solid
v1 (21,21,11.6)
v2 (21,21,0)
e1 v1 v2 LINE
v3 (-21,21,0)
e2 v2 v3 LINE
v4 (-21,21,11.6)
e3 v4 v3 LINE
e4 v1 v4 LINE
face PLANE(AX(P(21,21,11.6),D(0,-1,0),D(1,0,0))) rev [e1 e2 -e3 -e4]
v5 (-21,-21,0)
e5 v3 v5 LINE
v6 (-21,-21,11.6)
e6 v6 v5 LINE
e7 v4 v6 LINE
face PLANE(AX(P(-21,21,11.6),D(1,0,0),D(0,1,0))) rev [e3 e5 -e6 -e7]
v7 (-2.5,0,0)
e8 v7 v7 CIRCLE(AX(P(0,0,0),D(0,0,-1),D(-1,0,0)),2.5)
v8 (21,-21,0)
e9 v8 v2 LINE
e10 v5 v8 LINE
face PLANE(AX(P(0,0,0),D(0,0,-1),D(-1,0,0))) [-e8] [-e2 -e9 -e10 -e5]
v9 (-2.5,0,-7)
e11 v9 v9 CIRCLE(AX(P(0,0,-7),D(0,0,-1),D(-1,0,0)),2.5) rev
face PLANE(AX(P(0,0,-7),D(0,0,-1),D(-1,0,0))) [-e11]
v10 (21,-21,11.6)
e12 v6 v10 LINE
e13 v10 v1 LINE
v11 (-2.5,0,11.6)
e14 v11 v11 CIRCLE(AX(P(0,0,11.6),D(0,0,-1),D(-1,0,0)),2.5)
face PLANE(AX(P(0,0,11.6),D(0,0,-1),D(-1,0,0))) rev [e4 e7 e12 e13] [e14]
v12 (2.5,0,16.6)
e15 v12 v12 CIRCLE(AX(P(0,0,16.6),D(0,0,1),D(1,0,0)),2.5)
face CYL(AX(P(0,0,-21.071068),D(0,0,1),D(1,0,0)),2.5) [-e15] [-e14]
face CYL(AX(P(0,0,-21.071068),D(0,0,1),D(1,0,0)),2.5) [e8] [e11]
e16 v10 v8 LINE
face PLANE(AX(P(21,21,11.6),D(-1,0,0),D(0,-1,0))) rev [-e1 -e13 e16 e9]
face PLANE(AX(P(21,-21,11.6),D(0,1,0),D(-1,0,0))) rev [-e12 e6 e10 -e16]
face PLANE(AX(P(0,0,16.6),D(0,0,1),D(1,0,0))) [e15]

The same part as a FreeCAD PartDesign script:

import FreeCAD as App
import Part
import Sketcher

V = App.Vector
Q = App.Units.Quantity

doc = App.newDocument("Part")
body = doc.addObject("PartDesign::Body", "Body")

# Sketch on XY plane
sketch1 = body.newObject("Sketcher::SketchObject", "Sketch")
sketch1.AttachmentSupport = (doc.getObject("XY_Plane"), [""])
sketch1.MapMode = "FlatFace"
sketch1.addGeometry(Part.LineSegment(V(-21, 21, 0), V(-21, -21, 0)), False)
sketch1.addGeometry(Part.LineSegment(V(-21, -21, 0), V(21, -21, 0)), False)
sketch1.addGeometry(Part.LineSegment(V(21, -21, 0), V(21, 21, 0)), False)
sketch1.addGeometry(Part.LineSegment(V(21, 21, 0), V(-21, 21, 0)), False)
sketch1.addConstraint(Sketcher.Constraint("Coincident", 0, 2, 1, 1))
sketch1.addConstraint(Sketcher.Constraint("Coincident", 1, 2, 2, 1))
sketch1.addConstraint(Sketcher.Constraint("Coincident", 2, 2, 3, 1))
sketch1.addConstraint(Sketcher.Constraint("Coincident", 3, 2, 0, 1))
sketch1.addConstraint(Sketcher.Constraint("Vertical", 0))
sketch1.addConstraint(Sketcher.Constraint("Horizontal", 1))
sketch1.addConstraint(Sketcher.Constraint("Vertical", 2))
sketch1.addConstraint(Sketcher.Constraint("Horizontal", 3))
sketch1.addConstraint(Sketcher.Constraint("Symmetric", 0, 2, 2, 2, -1, 1))
sketch1.addConstraint(Sketcher.Constraint("Equal", 3, 0))
sketch1.addConstraint(Sketcher.Constraint("DistanceX", 1, 1, 1, 2, Q("42 mm")))
pad1 = body.newObject("PartDesign::Pad", "Pad")
pad1.Profile = sketch1
pad1.Length = 11.6

# Sketch on XY plane
sketch2 = body.newObject("Sketcher::SketchObject", "Sketch001")
sketch2.AttachmentSupport = (doc.getObject("XY_Plane"), [""])
sketch2.MapMode = "FlatFace"
sketch2.AttachmentOffset = App.Placement(V(0, 0, 11.6), App.Rotation())
sketch2.addGeometry(Part.Circle(V(0, 0, 0), V(0, 0, 1), 2.5), False)
sketch2.addConstraint(Sketcher.Constraint("Coincident", 0, 3, -1, 1))
sketch2.addConstraint(Sketcher.Constraint("Diameter", 0, Q("5 mm")))
pad2 = body.newObject("PartDesign::Pad", "Pad001")
pad2.Profile = sketch2
pad2.Type = "TwoLengths"
pad2.Length = 5
pad2.Length2 = 18.6

doc.recompute()
